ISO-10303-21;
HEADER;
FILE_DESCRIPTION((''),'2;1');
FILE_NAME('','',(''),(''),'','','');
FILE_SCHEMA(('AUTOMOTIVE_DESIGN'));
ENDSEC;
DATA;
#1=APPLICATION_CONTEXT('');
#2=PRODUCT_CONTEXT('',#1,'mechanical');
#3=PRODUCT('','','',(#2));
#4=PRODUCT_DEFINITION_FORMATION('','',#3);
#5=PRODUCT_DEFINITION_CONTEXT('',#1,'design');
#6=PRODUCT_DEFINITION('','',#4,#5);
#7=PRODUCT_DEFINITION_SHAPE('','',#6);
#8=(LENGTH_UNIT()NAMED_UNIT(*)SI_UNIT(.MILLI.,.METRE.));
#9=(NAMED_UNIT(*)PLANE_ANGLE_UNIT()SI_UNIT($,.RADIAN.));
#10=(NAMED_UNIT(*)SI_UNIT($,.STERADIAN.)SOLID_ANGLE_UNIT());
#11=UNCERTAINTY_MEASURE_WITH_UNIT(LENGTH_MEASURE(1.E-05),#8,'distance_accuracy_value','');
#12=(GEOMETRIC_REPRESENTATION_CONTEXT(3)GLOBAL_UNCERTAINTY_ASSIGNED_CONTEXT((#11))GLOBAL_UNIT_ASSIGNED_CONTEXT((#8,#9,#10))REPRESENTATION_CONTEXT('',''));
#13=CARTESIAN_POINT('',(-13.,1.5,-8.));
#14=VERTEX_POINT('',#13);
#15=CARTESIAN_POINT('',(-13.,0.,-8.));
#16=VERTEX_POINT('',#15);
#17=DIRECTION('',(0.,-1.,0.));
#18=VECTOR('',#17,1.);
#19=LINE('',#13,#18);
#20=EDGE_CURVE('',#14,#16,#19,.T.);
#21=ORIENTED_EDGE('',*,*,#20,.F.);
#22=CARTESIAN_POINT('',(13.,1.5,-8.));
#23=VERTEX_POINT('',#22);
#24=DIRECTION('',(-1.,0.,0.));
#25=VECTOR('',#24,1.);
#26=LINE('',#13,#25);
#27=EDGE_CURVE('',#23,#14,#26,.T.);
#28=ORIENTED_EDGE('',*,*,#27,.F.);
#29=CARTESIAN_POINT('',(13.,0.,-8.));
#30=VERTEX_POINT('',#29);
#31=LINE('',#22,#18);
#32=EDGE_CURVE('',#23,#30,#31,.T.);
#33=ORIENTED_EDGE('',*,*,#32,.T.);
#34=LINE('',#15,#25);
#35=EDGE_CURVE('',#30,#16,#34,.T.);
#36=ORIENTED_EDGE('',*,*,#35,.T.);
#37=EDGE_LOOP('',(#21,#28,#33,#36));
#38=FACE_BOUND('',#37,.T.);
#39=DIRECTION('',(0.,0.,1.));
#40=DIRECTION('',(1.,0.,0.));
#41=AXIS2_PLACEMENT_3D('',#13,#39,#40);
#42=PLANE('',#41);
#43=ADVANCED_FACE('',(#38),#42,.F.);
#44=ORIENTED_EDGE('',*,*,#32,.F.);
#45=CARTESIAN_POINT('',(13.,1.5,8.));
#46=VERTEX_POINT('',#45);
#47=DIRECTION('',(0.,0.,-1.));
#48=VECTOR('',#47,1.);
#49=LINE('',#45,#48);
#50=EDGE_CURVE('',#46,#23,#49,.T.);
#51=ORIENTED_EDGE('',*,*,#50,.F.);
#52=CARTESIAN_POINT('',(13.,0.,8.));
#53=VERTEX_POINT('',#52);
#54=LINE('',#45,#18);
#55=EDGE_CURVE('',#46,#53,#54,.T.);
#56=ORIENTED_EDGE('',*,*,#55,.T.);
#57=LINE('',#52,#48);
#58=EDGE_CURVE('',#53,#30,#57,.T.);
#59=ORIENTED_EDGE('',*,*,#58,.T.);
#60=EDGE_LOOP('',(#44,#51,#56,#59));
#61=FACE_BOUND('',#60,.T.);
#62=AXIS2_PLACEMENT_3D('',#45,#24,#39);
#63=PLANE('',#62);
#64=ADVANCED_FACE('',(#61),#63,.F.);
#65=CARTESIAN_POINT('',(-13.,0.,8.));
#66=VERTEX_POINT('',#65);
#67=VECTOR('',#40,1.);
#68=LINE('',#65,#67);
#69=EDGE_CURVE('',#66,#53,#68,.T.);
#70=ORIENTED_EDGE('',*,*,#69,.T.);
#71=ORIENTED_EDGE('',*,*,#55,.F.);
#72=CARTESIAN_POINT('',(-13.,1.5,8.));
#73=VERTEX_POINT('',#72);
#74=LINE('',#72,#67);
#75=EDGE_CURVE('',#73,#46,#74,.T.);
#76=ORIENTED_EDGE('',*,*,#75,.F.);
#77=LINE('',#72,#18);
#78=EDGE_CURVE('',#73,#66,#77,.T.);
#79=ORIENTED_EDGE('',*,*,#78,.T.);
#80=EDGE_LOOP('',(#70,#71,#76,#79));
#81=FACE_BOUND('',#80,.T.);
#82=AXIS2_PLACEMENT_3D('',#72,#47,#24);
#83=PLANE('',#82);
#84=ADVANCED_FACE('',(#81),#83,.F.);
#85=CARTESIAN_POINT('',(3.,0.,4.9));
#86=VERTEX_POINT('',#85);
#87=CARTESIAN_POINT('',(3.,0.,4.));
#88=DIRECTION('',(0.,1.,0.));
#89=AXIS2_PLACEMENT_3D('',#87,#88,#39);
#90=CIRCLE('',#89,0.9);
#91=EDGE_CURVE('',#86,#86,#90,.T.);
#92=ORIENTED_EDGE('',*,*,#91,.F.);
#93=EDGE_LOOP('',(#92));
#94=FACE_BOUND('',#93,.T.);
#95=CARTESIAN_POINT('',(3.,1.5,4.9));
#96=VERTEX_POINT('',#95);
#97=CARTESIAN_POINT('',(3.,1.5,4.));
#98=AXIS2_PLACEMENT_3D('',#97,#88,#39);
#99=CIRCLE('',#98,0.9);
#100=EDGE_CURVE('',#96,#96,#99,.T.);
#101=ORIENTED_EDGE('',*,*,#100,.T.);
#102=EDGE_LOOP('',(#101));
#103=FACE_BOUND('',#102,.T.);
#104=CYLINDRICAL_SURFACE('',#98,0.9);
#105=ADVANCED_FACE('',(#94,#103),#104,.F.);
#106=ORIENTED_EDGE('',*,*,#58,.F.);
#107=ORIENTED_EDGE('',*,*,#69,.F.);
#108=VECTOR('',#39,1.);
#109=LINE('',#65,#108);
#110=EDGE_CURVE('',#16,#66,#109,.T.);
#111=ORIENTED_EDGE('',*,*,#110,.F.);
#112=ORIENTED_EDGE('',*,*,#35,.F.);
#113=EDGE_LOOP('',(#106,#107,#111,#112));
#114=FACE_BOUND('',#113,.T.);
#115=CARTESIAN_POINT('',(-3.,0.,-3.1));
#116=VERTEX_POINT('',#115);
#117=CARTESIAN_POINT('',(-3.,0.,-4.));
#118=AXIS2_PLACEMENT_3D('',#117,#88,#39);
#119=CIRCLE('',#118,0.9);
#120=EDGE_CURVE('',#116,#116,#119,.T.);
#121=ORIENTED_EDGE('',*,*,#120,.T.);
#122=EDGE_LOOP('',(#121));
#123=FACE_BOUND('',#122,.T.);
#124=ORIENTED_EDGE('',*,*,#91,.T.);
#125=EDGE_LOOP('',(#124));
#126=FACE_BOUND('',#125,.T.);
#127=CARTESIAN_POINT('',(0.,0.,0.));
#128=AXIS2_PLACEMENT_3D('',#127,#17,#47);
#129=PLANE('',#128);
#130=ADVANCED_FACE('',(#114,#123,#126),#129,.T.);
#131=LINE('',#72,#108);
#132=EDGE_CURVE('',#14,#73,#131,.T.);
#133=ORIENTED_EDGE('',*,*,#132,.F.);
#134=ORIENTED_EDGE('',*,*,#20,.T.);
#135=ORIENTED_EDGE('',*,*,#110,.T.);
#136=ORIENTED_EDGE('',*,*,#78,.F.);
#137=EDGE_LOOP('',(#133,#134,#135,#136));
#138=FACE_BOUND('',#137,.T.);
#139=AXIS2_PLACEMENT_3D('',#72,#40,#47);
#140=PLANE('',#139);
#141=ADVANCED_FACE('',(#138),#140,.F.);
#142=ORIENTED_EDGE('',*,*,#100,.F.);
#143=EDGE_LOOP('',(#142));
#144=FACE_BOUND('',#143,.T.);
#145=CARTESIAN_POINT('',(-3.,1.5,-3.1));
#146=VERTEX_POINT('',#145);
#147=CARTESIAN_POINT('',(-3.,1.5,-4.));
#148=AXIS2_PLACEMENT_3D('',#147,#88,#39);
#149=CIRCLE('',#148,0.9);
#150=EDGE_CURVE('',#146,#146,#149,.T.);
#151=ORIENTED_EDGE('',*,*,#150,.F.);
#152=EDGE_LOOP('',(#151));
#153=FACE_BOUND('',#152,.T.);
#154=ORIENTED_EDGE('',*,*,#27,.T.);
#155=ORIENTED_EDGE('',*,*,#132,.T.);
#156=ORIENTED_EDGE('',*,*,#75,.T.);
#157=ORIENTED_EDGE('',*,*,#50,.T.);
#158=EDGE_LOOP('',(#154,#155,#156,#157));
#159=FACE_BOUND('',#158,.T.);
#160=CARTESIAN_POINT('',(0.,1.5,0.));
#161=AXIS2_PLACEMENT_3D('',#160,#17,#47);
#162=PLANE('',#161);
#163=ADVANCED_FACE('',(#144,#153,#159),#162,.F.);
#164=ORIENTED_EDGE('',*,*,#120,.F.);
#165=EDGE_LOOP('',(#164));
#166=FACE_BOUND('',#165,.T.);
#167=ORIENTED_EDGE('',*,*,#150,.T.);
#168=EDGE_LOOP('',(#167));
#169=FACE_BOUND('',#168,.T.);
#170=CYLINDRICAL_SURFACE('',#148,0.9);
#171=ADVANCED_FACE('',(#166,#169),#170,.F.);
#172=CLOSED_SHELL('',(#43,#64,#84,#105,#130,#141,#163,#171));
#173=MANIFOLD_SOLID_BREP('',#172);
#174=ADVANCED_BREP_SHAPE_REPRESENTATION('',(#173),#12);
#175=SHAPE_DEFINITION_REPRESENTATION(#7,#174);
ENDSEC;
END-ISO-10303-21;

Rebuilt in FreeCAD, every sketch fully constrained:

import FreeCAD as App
import Part
import Sketcher

V = App.Vector

doc = App.newDocument("Part")
body = doc.addObject("PartDesign::Body", "Body")

# Sketch on XZ plane
sketch1 = doc.addObject("Sketcher::SketchObject", "Sketch")
body.addObject(sketch1)
sketch1.AttachmentSupport = (doc.XZ_Plane, [""])
sketch1.MapMode = "FlatFace"
sketch1.addGeometry(Part.LineSegment(V(-13, -8, 0), V(-13, 8, 0)), False)
sketch1.addGeometry(Part.LineSegment(V(-13, 8, 0), V(13, 8, 0)), False)
sketch1.addGeometry(Part.LineSegment(V(13, 8, 0), V(13, -8, 0)), False)
sketch1.addGeometry(Part.LineSegment(V(13, -8, 0), V(-13, -8, 0)), False)
sketch1.addConstraint(Sketcher.Constraint("Coincident", 0, 2, 1, 1))
sketch1.addConstraint(Sketcher.Constraint("Coincident", 1, 2, 2, 1))
sketch1.addConstraint(Sketcher.Constraint("Coincident", 2, 2, 3, 1))
sketch1.addConstraint(Sketcher.Constraint("Coincident", 3, 2, 0, 1))
sketch1.addConstraint(Sketcher.Constraint("Vertical", 0))
sketch1.addConstraint(Sketcher.Constraint("Horizontal", 1))
sketch1.addConstraint(Sketcher.Constraint("Vertical", 2))
sketch1.addConstraint(Sketcher.Constraint("Horizontal", 3))
sketch1.addConstraint(Sketcher.Constraint("Symmetric", 0, 2, 2, 2, -1, 1))
sketch1.addConstraint(Sketcher.Constraint("DistanceX", 1, 1, 1, 2, 26.0))
sketch1.addConstraint(Sketcher.Constraint("DistanceY", 0, 1, 0, 2, 16.0))
pad1 = doc.addObject("PartDesign::Pad", "Pad")
body.addObject(pad1)
pad1.Profile = sketch1
pad1.Length = 1.5
pad1.Reversed = True

# Sketch on XZ plane
sketch2 = doc.addObject("Sketcher::SketchObject", "Sketch001")
body.addObject(sketch2)
sketch2.AttachmentSupport = (doc.XZ_Plane, [""])
sketch2.MapMode = "FlatFace"
sketch2.AttachmentOffset = App.Placement(V(0, 0, -1.5), App.Rotation())
sketch2.addGeometry(Part.Circle(V(-3, -4, 0), V(0, 0, 1), 0.9), False)
sketch2.addGeometry(Part.Circle(V(3, 4, 0), V(0, 0, 1), 0.9), False)
sketch2.addConstraint(Sketcher.Constraint("Equal", 0, 1))
sketch2.addConstraint(Sketcher.Constraint("Symmetric", 0, 3, 1, 3, -1, 1))
sketch2.addConstraint(Sketcher.Constraint("Diameter", 0, 1.8))
sketch2.addConstraint(Sketcher.Constraint("DistanceX", 0, 3, -1, 1, 3.0))
sketch2.addConstraint(Sketcher.Constraint("DistanceY", 0, 3, -1, 1, 4.0))
doc.recompute()
hole = doc.addObject("PartDesign::Hole", "Hole")
body.addObject(hole)
hole.Profile = sketch2
hole.ThreadType = "None"
hole.Diameter = 1.8
hole.DepthType = "ThroughAll"
hole.Reversed = True

doc.recompute()
